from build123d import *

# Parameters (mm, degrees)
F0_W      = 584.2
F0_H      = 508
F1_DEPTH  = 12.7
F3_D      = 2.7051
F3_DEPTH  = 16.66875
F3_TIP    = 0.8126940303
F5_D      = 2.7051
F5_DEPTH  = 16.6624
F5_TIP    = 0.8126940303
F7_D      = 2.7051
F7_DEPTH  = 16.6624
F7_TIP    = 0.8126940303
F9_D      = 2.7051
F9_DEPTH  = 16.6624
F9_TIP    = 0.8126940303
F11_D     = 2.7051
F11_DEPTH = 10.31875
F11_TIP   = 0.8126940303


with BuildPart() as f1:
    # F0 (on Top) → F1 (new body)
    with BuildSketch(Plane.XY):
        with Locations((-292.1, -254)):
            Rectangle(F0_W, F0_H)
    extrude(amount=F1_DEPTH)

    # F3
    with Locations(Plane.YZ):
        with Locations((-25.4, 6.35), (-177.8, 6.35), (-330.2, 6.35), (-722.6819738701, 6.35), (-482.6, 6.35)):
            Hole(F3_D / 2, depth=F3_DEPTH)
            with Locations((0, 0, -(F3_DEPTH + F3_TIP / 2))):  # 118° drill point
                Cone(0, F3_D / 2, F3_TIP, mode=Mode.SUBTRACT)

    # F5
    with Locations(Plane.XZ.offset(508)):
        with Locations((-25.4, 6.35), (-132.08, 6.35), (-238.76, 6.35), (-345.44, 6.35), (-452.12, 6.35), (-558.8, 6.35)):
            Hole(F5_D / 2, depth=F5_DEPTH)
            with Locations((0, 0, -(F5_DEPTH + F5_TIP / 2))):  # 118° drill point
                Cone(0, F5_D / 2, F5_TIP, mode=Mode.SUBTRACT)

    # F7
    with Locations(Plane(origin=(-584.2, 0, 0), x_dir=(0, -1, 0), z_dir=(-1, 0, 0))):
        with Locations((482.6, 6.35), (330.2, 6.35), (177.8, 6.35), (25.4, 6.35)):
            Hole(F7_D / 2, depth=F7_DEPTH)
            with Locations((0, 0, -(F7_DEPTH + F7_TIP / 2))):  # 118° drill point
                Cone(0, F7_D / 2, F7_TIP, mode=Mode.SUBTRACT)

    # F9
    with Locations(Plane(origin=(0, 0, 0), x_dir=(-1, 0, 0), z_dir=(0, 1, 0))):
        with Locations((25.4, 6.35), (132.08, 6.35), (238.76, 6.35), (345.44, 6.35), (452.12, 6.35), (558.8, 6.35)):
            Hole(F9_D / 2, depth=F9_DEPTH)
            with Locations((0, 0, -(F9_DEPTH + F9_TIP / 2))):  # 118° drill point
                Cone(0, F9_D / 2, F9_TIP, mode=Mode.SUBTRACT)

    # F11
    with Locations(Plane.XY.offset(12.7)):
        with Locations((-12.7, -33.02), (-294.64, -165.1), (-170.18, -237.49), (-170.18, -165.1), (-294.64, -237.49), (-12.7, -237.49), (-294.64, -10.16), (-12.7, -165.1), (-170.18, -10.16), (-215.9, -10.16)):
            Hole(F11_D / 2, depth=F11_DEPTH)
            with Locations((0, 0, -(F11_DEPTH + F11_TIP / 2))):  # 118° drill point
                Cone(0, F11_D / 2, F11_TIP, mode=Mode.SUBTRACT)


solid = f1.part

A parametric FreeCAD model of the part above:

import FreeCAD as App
import Part
import Sketcher

V = App.Vector
Q = App.Units.Quantity


def add_polygon(sketch, points):
    """Adds a closed chain of lines whose ends are joined by coincident constraints."""
    first, n = sketch.GeometryCount, len(points)
    for a, b in zip(points, points[1:] + points[:1]):
        sketch.addGeometry(Part.LineSegment(App.Vector(*a, 0), App.Vector(*b, 0)), False)
    for i in range(n):
        sketch.addConstraint(Sketcher.Constraint("Coincident", first + i, 2, first + (i + 1) % n, 1))

doc = App.newDocument("Part")
body = doc.addObject("PartDesign::Body", "Body")

# Sketch on XY plane
sketch1 = body.newObject("Sketcher::SketchObject", "Sketch")
sketch1.AttachmentSupport = (doc.getObject("XY_Plane"), [""])
sketch1.MapMode = "FlatFace"
add_polygon(sketch1, [(-584, 0), (-584, -508), (0, -508), (0, 0)])  # lines 0-3
sketch1.addConstraint([
    Sketcher.Constraint("Vertical", 0),
    Sketcher.Constraint("Horizontal", 1),
    Sketcher.Constraint("Vertical", 2),
    Sketcher.Constraint("Horizontal", 3),
    Sketcher.Constraint("Coincident", 2, 2, -1, 1),
    Sketcher.Constraint("DistanceX", 1, 1, 1, 2, Q("23 in")),
    Sketcher.Constraint("DistanceY", 0, 2, 0, 1, Q("20 in")),
])
pad1 = body.newObject("PartDesign::Pad", "Pad")
pad1.Profile = sketch1
pad1.Length = Q("0.5 in")

# Sketch on YZ plane
sketch2 = body.newObject("Sketcher::SketchObject", "Sketch001")
sketch2.AttachmentSupport = (doc.getObject("YZ_Plane"), [""])
sketch2.MapMode = "FlatFace"
sketch2.addGeometry([
    Part.Circle(V(-25.4, 6.3, 0), V(0, 0, 1), 1.4),  # 0
    Part.Circle(V(-177.8, 6.3, 0), V(0, 0, 1), 1.4),  # 1
    Part.Circle(V(-330.2, 6.3, 0), V(0, 0, 1), 1.4),  # 2
    Part.Circle(V(-722.7, 6.3, 0), V(0, 0, 1), 1.4),  # 3
    Part.Circle(V(-482.6, 6.3, 0), V(0, 0, 1), 1.4),  # 4
], False)
sketch2.addConstraint([
    Sketcher.Constraint("Equal", 0, 1),
    Sketcher.Constraint("Equal", 1, 2),
    Sketcher.Constraint("Equal", 2, 3),
    Sketcher.Constraint("Equal", 3, 4),
    Sketcher.Constraint("Horizontal", 0, 3, 1, 3),
    Sketcher.Constraint("Horizontal", 1, 3, 2, 3),
    Sketcher.Constraint("Horizontal", 2, 3, 3, 3),
    Sketcher.Constraint("Horizontal", 3, 3, 4, 3),
    Sketcher.Constraint("DistanceX", 0, 3, -1, 1, Q("1 in")),
    Sketcher.Constraint("DistanceX", 1, 3, -1, 1, Q("7 in")),
    Sketcher.Constraint("DistanceX", 2, 3, -1, 1, Q("13 in")),
    Sketcher.Constraint("DistanceX", 4, 3, -1, 1, Q("19 in")),
    Sketcher.Constraint("Diameter", 0, Q("0.1065 in")),
    Sketcher.Constraint("DistanceY", -1, 1, 0, 3, Q("0.25 in")),
    Sketcher.Constraint("DistanceX", 3, 3, -1, 1, Q("722.681974 mm")),
])
doc.recompute()
hole = body.newObject("PartDesign::Hole", "Hole")
hole.Profile = sketch2
hole.ThreadType = "None"
hole.Diameter = Q("0.1065 in")
hole.DepthType = "Dimension"
hole.Depth = Q("0.65625 in")
hole.DrillPoint = "Angled"
hole.DrillPointAngle = 118

# Sketch on XZ plane
sketch3 = body.newObject("Sketcher::SketchObject", "Sketch002")
sketch3.AttachmentSupport = (doc.getObject("XZ_Plane"), [""])
sketch3.MapMode = "FlatFace"
sketch3.AttachmentOffset = App.Placement(V(0, 0, 20 * 25.4), App.Rotation())
sketch3.addGeometry([
    Part.Circle(V(-25.4, 6.3, 0), V(0, 0, 1), 1.4),  # 0
    Part.Circle(V(-132.1, 6.3, 0), V(0, 0, 1), 1.4),  # 1
    Part.Circle(V(-238.8, 6.3, 0), V(0, 0, 1), 1.4),  # 2
    Part.Circle(V(-345.4, 6.3, 0), V(0, 0, 1), 1.4),  # 3
    Part.Circle(V(-452.1, 6.3, 0), V(0, 0, 1), 1.4),  # 4
    Part.Circle(V(-558.8, 6.3, 0), V(0, 0, 1), 1.4),  # 5
], False)
sketch3.addConstraint([
    Sketcher.Constraint("Equal", 0, 1),
    Sketcher.Constraint("Equal", 1, 2),
    Sketcher.Constraint("Equal", 2, 3),
    Sketcher.Constraint("Equal", 3, 4),
    Sketcher.Constraint("Equal", 4, 5),
    Sketcher.Constraint("Horizontal", 0, 3, 1, 3),
    Sketcher.Constraint("Horizontal", 1, 3, 2, 3),
    Sketcher.Constraint("Horizontal", 2, 3, 3, 3),
    Sketcher.Constraint("Horizontal", 3, 3, 4, 3),
    Sketcher.Constraint("Horizontal", 4, 3, 5, 3),
    Sketcher.Constraint("DistanceX", 0, 3, -1, 1, Q("1 in")),
    Sketcher.Constraint("DistanceX", 5, 3, -1, 1, Q("22 in")),
    Sketcher.Constraint("Diameter", 0, Q("0.1065 in")),
    Sketcher.Constraint("DistanceX", 1, 3, -1, 1, Q("5.2 in")),
    Sketcher.Constraint("DistanceX", 2, 3, -1, 1, Q("9.4 in")),
    Sketcher.Constraint("DistanceX", 3, 3, -1, 1, Q("13.6 in")),
    Sketcher.Constraint("DistanceX", 4, 3, -1, 1, Q("17.8 in")),
    Sketcher.Constraint("DistanceY", -1, 1, 0, 3, Q("0.25 in")),
])
doc.recompute()
hole2 = body.newObject("PartDesign::Hole", "Hole001")
hole2.Profile = sketch3
hole2.ThreadType = "None"
hole2.Diameter = Q("0.1065 in")
hole2.DepthType = "Dimension"
hole2.Depth = Q("0.656 in")
hole2.DrillPoint = "Angled"
hole2.DrillPointAngle = 118

# Sketch on YZ plane
sketch4 = body.newObject("Sketcher::SketchObject", "Sketch003")
sketch4.AttachmentSupport = (doc.getObject("YZ_Plane"), [""])
sketch4.MapMode = "FlatFace"
sketch4.AttachmentOffset = App.Placement(V(0, 0, -23 * 25.4), App.Rotation())
sketch4.addGeometry([
    Part.Circle(V(-482.6, 6.3, 0), V(0, 0, 1), 1.4),
    Part.Circle(V(-330.2, 6.3, 0), V(0, 0, 1), 1.4),
    Part.Circle(V(-177.8, 6.3, 0), V(0, 0, 1), 1.4),
    Part.Circle(V(-25.4, 6.3, 0), V(0, 0, 1), 1.4),
], False)
sketch4.addConstraint([
    Sketcher.Constraint("Equal", 0, 1),
    Sketcher.Constraint("Equal", 1, 2),
    Sketcher.Constraint("Equal", 2, 3),
    Sketcher.Constraint("Horizontal", 0, 3, 1, 3),
    Sketcher.Constraint("Horizontal", 1, 3, 2, 3),
    Sketcher.Constraint("Horizontal", 2, 3, 3, 3),
    Sketcher.Constraint("DistanceX", 0, 3, -1, 1, Q("19 in")),
    Sketcher.Constraint("DistanceX", 1, 3, -1, 1, Q("13 in")),
    Sketcher.Constraint("DistanceX", 2, 3, -1, 1, Q("7 in")),
    Sketcher.Constraint("DistanceX", 3, 3, -1, 1, Q("1 in")),
    Sketcher.Constraint("Diameter", 0, Q("0.1065 in")),
    Sketcher.Constraint("DistanceY", -1, 1, 0, 3, Q("0.25 in")),
])
doc.recompute()
hole3 = body.newObject("PartDesign::Hole", "Hole002")
hole3.Profile = sketch4
hole3.ThreadType = "None"
hole3.Diameter = Q("0.1065 in")
hole3.DepthType = "Dimension"
hole3.Depth = Q("0.656 in")
hole3.DrillPoint = "Angled"
hole3.DrillPointAngle = 118
hole3.Reversed = True

# Sketch on XZ plane
sketch5 = body.newObject("Sketcher::SketchObject", "Sketch004")
sketch5.AttachmentSupport = (doc.getObject("XZ_Plane"), [""])
sketch5.MapMode = "FlatFace"
sketch5.addGeometry([
    Part.Circle(V(-25.4, 6.3, 0), V(0, 0, 1), 1.4),  # 0
    Part.Circle(V(-132.1, 6.3, 0), V(0, 0, 1), 1.4),  # 1
    Part.Circle(V(-238.8, 6.3, 0), V(0, 0, 1), 1.4),  # 2
    Part.Circle(V(-345.4, 6.3, 0), V(0, 0, 1), 1.4),  # 3
    Part.Circle(V(-452.1, 6.3, 0), V(0, 0, 1), 1.4),  # 4
    Part.Circle(V(-558.8, 6.3, 0), V(0, 0, 1), 1.4),  # 5
], False)
sketch5.addConstraint([
    Sketcher.Constraint("Equal", 0, 1),
    Sketcher.Constraint("Equal", 1, 2),
    Sketcher.Constraint("Equal", 2, 3),
    Sketcher.Constraint("Equal", 3, 4),
    Sketcher.Constraint("Equal", 4, 5),
    Sketcher.Constraint("Horizontal", 0, 3, 1, 3),
    Sketcher.Constraint("Horizontal", 1, 3, 2, 3),
    Sketcher.Constraint("Horizontal", 2, 3, 3, 3),
    Sketcher.Constraint("Horizontal", 3, 3, 4, 3),
    Sketcher.Constraint("Horizontal", 4, 3, 5, 3),
    Sketcher.Constraint("DistanceX", 0, 3, -1, 1, Q("1 in")),
    Sketcher.Constraint("DistanceX", 5, 3, -1, 1, Q("22 in")),
    Sketcher.Constraint("Diameter", 0, Q("0.1065 in")),
    Sketcher.Constraint("DistanceX", 1, 3, -1, 1, Q("5.2 in")),
    Sketcher.Constraint("DistanceX", 2, 3, -1, 1, Q("9.4 in")),
    Sketcher.Constraint("DistanceX", 3, 3, -1, 1, Q("13.6 in")),
    Sketcher.Constraint("DistanceX", 4, 3, -1, 1, Q("17.8 in")),
    Sketcher.Constraint("DistanceY", -1, 1, 0, 3, Q("0.25 in")),
])
doc.recompute()
hole4 = body.newObject("PartDesign::Hole", "Hole003")
hole4.Profile = sketch5
hole4.ThreadType = "None"
hole4.Diameter = Q("0.1065 in")
hole4.DepthType = "Dimension"
hole4.Depth = Q("0.656 in")
hole4.DrillPoint = "Angled"
hole4.DrillPointAngle = 118
hole4.Reversed = True

# Sketch on XY plane
sketch6 = body.newObject("Sketcher::SketchObject", "Sketch005")
sketch6.AttachmentSupport = (doc.getObject("XY_Plane"), [""])
sketch6.MapMode = "FlatFace"
sketch6.AttachmentOffset = App.Placement(V(0, 0, 0.5 * 25.4), App.Rotation())
sketch6.addGeometry([
    Part.Circle(V(-12.7, -33, 0), V(0, 0, 1), 1.4),  # 0
    Part.Circle(V(-294.6, -165.1, 0), V(0, 0, 1), 1.4),  # 1
    Part.Circle(V(-170.2, -237.5, 0), V(0, 0, 1), 1.4),  # 2
    Part.Circle(V(-170.2, -165.1, 0), V(0, 0, 1), 1.4),  # 3
    Part.Circle(V(-294.6, -237.5, 0), V(0, 0, 1), 1.4),  # 4
    Part.Circle(V(-12.7, -237.5, 0), V(0, 0, 1), 1.4),  # 5
    Part.Circle(V(-294.6, -10.2, 0), V(0, 0, 1), 1.4),  # 6
    Part.Circle(V(-12.7, -165.1, 0), V(0, 0, 1), 1.4),  # 7
    Part.Circle(V(-170.2, -10.2, 0), V(0, 0, 1), 1.4),  # 8
    Part.Circle(V(-215.9, -10.2, 0), V(0, 0, 1), 1.4),  # 9
], False)
sketch6.addConstraint([
    Sketcher.Constraint("Equal", 0, 1),
    Sketcher.Constraint("Equal", 1, 2),
    Sketcher.Constraint("Equal", 2, 3),
    Sketcher.Constraint("Equal", 3, 4),
    Sketcher.Constraint("Equal", 4, 5),
    Sketcher.Constraint("Equal", 5, 6),
    Sketcher.Constraint("Equal", 6, 7),
    Sketcher.Constraint("Equal", 7, 8),
    Sketcher.Constraint("Equal", 8, 9),
    Sketcher.Constraint("Horizontal", 1, 3, 3, 3),
    Sketcher.Constraint("Horizontal", 2, 3, 4, 3),
    Sketcher.Constraint("Horizontal", 4, 3, 5, 3),
    Sketcher.Constraint("Horizontal", 3, 3, 7, 3),
    Sketcher.Constraint("Horizontal", 6, 3, 8, 3),
    Sketcher.Constraint("Horizontal", 8, 3, 9, 3),
    Sketcher.Constraint("Vertical", 2, 3, 3, 3),
    Sketcher.Constraint("Vertical", 1, 3, 4, 3),
    Sketcher.Constraint("Vertical", 0, 3, 5, 3),
    Sketcher.Constraint("Vertical", 4, 3, 6, 3),
    Sketcher.Constraint("Vertical", 5, 3, 7, 3),
    Sketcher.Constraint("Vertical", 3, 3, 8, 3),
    Sketcher.Constraint("DistanceX", 9, 3, 0, 3, Q("8 in")),
    Sketcher.Constraint("Diameter", 0, Q("0.1065 in")),
    Sketcher.Constraint("DistanceX", 0, 3, -1, 1, Q("0.5 in")),
    Sketcher.Constraint("DistanceY", 0, 3, -1, 1, Q("1.3 in")),
    Sketcher.Constraint("DistanceX", 1, 3, -1, 1, Q("11.6 in")),
    Sketcher.Constraint("DistanceY", 1, 3, -1, 1, Q("6.5 in")),
    Sketcher.Constraint("DistanceX", 2, 3, -1, 1, Q("6.7 in")),
    Sketcher.Constraint("DistanceY", 6, 3, -1, 1, Q("0.4 in")),
    Sketcher.Constraint("DistanceY", 2, 3, -1, 1, Q("9.35 in")),
])
doc.recompute()
hole5 = body.newObject("PartDesign::Hole", "Hole004")
hole5.Profile = sketch6
hole5.ThreadType = "None"
hole5.Diameter = Q("0.1065 in")
hole5.DepthType = "Dimension"
hole5.Depth = Q("0.40625 in")
hole5.DrillPoint = "Angled"
hole5.DrillPointAngle = 118

doc.recompute()
